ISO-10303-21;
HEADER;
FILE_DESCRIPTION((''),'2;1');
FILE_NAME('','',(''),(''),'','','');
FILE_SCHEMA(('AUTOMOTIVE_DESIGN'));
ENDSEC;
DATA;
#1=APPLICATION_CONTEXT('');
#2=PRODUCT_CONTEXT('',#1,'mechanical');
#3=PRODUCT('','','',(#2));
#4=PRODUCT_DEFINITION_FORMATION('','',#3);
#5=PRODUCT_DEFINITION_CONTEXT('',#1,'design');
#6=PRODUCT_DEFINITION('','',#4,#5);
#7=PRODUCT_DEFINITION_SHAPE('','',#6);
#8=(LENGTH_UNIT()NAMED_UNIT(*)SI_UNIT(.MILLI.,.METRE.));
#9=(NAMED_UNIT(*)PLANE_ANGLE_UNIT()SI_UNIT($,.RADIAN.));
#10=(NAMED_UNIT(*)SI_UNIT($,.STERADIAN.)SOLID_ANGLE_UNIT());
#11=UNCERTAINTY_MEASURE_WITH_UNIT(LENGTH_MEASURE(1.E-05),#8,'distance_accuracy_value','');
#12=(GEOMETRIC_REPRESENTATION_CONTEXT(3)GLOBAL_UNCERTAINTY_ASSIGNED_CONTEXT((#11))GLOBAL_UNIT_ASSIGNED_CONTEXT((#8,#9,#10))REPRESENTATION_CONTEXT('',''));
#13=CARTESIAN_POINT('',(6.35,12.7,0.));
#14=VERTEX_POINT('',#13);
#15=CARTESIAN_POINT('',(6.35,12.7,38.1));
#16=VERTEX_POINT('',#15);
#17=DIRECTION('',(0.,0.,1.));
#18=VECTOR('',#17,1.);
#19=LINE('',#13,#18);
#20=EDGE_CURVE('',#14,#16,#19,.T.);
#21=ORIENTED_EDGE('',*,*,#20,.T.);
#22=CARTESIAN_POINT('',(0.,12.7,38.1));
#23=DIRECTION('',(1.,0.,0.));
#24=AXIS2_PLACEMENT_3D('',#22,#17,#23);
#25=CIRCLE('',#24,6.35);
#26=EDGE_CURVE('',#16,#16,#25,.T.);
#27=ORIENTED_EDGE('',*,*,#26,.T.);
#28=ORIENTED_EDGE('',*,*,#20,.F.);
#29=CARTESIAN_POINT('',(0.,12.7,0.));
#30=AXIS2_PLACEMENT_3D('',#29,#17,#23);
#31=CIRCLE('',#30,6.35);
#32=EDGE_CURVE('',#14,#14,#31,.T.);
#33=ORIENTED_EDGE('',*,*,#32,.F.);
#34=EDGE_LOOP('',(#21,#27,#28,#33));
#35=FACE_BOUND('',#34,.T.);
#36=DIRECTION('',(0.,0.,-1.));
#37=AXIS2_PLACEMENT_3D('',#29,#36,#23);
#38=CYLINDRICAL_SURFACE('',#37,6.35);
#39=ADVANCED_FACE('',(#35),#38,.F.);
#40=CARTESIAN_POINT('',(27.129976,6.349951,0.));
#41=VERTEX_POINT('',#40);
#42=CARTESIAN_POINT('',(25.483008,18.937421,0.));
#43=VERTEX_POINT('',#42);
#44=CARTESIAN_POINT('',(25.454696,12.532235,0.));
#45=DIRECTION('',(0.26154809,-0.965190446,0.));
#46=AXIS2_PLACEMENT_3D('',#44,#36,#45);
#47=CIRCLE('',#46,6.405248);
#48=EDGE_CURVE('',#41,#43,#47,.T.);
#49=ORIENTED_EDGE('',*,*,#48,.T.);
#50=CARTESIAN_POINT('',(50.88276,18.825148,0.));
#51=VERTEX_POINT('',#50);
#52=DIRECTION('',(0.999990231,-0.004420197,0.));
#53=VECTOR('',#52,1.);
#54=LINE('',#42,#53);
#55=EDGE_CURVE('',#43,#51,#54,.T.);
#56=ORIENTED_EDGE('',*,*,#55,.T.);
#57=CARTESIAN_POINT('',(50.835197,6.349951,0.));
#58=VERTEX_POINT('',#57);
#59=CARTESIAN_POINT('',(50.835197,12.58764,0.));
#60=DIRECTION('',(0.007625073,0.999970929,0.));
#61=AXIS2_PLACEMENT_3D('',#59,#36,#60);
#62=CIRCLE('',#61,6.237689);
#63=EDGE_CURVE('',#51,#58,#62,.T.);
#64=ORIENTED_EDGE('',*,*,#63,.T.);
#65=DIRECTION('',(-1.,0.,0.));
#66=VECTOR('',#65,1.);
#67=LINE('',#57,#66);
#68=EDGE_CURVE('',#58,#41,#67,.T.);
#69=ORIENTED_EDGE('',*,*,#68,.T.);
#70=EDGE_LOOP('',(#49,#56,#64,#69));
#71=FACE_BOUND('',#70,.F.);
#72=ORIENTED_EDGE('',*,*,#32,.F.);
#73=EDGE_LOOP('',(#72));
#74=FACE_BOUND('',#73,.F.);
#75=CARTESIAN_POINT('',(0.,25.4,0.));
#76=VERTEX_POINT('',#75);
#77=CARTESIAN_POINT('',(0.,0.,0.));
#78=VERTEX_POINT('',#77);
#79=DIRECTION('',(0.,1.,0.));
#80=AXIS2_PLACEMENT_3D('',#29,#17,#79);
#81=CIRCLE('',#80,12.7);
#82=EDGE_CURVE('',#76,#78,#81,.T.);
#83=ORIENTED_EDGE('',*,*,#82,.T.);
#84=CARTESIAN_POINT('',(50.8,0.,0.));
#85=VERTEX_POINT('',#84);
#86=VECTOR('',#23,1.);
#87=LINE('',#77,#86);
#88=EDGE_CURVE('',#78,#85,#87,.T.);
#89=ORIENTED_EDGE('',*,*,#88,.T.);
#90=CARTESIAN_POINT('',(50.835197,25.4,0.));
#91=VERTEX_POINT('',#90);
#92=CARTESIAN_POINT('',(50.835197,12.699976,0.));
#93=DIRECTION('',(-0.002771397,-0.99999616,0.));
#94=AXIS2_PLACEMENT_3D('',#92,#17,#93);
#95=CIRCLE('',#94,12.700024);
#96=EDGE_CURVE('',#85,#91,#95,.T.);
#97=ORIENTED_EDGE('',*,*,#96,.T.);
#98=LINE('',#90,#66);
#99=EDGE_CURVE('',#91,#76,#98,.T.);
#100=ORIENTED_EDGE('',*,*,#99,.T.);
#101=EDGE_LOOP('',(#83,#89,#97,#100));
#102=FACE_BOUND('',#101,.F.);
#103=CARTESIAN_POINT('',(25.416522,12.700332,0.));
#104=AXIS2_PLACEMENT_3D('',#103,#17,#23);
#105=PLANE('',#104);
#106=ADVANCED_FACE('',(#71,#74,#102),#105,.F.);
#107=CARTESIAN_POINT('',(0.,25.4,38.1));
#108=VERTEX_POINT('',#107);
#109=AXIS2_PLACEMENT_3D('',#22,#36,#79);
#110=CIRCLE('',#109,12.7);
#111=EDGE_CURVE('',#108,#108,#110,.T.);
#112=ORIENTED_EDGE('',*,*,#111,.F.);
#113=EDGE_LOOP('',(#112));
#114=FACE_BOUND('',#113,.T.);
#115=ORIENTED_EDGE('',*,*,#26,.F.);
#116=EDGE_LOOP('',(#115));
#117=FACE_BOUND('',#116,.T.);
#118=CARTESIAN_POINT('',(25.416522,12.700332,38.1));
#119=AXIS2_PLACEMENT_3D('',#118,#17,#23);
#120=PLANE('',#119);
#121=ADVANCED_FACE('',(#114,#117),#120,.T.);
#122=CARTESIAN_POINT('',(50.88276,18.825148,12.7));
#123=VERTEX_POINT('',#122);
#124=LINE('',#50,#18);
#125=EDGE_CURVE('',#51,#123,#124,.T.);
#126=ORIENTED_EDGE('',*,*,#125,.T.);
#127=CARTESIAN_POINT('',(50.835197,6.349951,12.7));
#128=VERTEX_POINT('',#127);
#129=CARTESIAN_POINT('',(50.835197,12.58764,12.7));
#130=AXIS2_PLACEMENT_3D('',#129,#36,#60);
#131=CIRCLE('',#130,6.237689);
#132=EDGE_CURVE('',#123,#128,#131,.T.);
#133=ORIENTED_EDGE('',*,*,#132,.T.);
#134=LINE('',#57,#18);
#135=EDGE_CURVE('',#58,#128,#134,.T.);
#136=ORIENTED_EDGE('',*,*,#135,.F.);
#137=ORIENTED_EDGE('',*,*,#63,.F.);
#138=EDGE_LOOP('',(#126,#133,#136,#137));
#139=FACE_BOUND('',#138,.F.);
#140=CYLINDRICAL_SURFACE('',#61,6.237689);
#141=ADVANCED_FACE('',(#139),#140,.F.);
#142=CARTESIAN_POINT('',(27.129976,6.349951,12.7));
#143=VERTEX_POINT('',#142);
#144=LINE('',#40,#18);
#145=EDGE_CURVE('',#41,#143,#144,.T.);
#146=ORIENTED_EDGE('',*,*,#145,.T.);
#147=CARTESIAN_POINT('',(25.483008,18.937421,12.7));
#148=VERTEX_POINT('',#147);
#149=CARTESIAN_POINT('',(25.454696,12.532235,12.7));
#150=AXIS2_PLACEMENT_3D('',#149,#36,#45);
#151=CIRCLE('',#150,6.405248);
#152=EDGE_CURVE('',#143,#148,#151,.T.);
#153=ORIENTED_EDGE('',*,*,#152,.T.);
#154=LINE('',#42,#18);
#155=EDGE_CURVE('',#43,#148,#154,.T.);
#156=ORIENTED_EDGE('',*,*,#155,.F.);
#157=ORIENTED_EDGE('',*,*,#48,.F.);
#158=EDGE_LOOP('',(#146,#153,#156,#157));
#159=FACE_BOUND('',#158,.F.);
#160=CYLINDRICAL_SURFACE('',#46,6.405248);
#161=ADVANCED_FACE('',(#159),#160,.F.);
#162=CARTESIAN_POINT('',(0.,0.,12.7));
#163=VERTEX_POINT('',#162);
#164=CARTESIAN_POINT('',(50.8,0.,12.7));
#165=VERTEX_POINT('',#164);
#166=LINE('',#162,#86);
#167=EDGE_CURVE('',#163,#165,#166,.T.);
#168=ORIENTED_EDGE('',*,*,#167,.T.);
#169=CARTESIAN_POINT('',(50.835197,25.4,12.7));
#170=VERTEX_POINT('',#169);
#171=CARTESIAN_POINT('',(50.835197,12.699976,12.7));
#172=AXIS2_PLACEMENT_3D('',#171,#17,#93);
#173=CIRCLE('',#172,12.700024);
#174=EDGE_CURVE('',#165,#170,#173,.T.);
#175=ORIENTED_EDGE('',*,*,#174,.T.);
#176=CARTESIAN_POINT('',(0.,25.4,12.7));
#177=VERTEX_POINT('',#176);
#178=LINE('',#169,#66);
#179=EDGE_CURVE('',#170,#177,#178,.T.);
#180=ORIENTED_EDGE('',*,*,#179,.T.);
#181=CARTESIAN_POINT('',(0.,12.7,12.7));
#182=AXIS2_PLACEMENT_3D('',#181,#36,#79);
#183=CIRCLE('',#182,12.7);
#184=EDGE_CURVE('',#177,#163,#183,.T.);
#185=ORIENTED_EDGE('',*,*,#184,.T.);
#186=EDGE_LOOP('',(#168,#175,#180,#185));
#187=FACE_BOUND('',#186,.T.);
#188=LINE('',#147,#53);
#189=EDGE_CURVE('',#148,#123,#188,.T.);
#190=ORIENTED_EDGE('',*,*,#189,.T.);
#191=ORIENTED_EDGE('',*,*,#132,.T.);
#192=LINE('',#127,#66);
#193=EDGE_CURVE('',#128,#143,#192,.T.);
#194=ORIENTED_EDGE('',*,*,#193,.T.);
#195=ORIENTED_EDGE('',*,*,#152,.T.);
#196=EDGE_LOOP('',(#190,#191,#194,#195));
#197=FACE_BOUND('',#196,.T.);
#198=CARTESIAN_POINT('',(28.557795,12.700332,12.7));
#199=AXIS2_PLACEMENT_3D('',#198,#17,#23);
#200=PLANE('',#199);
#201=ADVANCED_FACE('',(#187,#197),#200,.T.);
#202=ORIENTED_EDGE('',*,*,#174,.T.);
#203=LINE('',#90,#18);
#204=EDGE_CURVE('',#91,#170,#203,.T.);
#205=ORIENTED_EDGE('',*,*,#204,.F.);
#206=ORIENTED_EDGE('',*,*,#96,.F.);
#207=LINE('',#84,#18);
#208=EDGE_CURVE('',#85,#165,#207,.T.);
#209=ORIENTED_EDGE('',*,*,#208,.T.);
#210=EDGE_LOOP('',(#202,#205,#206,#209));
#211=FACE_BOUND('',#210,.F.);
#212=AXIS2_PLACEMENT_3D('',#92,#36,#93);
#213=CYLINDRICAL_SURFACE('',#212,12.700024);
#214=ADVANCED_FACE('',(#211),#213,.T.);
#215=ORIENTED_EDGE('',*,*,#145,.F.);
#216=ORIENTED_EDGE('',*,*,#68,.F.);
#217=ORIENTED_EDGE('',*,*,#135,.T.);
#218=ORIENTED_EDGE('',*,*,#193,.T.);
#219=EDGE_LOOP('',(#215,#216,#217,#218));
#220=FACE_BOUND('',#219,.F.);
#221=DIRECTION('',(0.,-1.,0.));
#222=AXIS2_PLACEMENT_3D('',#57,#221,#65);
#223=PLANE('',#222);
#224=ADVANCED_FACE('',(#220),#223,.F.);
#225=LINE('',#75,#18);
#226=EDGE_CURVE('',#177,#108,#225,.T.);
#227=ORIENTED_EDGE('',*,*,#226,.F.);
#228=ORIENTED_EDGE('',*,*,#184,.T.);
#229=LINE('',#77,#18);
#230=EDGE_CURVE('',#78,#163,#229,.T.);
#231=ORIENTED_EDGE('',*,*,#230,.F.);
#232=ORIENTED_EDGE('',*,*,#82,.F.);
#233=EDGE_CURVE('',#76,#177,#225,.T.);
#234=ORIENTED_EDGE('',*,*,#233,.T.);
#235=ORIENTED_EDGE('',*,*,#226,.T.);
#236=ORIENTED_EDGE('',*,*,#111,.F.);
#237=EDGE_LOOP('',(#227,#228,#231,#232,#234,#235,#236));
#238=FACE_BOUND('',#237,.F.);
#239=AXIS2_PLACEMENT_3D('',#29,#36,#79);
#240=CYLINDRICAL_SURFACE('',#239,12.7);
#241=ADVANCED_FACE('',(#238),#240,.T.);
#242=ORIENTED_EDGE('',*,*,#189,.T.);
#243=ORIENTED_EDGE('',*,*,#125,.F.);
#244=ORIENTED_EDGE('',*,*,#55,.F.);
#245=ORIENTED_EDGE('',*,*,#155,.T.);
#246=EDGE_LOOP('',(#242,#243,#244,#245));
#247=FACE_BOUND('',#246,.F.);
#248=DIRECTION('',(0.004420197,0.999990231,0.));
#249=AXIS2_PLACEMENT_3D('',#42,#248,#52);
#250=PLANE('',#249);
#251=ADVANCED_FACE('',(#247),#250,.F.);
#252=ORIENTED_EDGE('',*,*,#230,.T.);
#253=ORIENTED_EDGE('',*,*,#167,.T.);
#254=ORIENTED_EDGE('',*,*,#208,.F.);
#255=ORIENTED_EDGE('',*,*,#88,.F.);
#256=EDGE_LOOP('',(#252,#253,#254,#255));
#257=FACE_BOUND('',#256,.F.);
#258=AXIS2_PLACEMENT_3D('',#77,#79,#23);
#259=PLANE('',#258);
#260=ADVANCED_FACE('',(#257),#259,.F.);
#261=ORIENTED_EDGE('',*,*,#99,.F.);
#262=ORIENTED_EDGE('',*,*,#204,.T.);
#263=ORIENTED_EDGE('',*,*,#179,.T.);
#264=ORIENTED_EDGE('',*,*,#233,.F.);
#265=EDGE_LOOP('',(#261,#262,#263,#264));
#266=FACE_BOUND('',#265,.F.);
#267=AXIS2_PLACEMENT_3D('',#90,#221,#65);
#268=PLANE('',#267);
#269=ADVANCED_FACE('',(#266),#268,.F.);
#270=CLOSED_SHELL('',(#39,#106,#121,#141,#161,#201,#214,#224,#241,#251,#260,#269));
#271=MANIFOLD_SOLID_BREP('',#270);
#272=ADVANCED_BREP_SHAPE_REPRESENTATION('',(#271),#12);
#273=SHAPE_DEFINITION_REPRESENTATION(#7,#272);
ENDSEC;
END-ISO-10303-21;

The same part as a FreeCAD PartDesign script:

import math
import FreeCAD as App
import Part
import Sketcher
from FreeCAD import Vector
Q = App.Units.Quantity

doc = App.newDocument("Part")
body = doc.addObject("PartDesign::Body", "Body")

# Sketch on XY plane
sketch1 = body.newObject("Sketcher::SketchObject", "Sketch")
sketch1.AttachmentSupport = (doc.getObject("XY_Plane"), [""])
sketch1.MapMode = "FlatFace"
sketch1.addGeometry([
    Part.ArcOfCircle(Part.Circle(Vector(0, 13, 0), Vector(0, 0, 1), 13), math.radians(90), math.radians(270)),  # 0
    Part.LineSegment(Vector(0, 0, 0), Vector(51, 0, 0)),  # 1
    Part.ArcOfCircle(Part.Circle(Vector(51, 13, 0), Vector(0, 0, 1), 13), math.radians(-90), math.radians(90)),  # 2
    Part.LineSegment(Vector(51, 25, 0), Vector(0, 25, 0)),  # 3
    Part.ArcOfCircle(Part.Circle(Vector(25, 13, 0), Vector(0, 0, 1), 6), math.radians(90), math.radians(285)),  # 4
    Part.LineSegment(Vector(25, 19, 0), Vector(51, 19, 0)),  # 5
    Part.ArcOfCircle(Part.Circle(Vector(51, 13, 0), Vector(0, 0, 1), 6), math.radians(-90), math.radians(90)),  # 6
    Part.LineSegment(Vector(51, 6, 0), Vector(27, 6, 0)),  # 7
    Part.Circle(Vector(0, 13, 0), Vector(0, 0, 1), 6),  # 8
], False)
sketch1.addConstraint([
    Sketcher.Constraint("Tangent", 0, 2, 1, 1),
    Sketcher.Constraint("Coincident", 1, 2, 2, 1),
    Sketcher.Constraint("Tangent", 2, 2, 3, 1),
    Sketcher.Constraint("Tangent", 3, 2, 0, 1),
    Sketcher.Constraint("Tangent", 4, 1, 5, 1),
    Sketcher.Constraint("Coincident", 5, 2, 6, 2),
    Sketcher.Constraint("Tangent", 6, 1, 7, 1),
    Sketcher.Constraint("Coincident", 7, 2, 4, 2),
    Sketcher.Constraint("Horizontal", 1),
    Sketcher.Constraint("Horizontal", 3),
    Sketcher.Constraint("Horizontal", 7),
    Sketcher.Constraint("Coincident", 0, 2, -1, 1),
    Sketcher.Constraint("Coincident", 8, 3, 0, 3),
    Sketcher.Constraint("Vertical", 2, 3, 6, 3),
    Sketcher.Constraint("Diameter", 8, Q("0.5 in")),
    Sketcher.Constraint("Radius", 0, Q("0.5 in")),
    Sketcher.Constraint("DistanceX", 1, 1, 1, 2, Q("2 in")),
    Sketcher.Constraint("Distance", 5, Q("1 in")),
    Sketcher.Constraint("Radius", 4, Q("6.405248 mm")),
    Sketcher.Constraint("Radius", 6, Q("6.237689 mm")),
    Sketcher.Constraint("DistanceX", 7, 2, 7, 1, Q("23.705221 mm")),
    Sketcher.Constraint("DistanceX", 4, 3, 2, 3, Q("25.380501 mm")),
    Sketcher.Constraint("DistanceX", 3, 2, 3, 1, Q("50.835197 mm")),
    Sketcher.Constraint("DistanceY", -1, 1, 6, 3, Q("12.58764 mm")),
])
pad1 = body.newObject("PartDesign::Pad", "Pad")
pad1.Profile = sketch1
pad1.Length = Q("1.5 in")

# Sketch on XY plane
sketch2 = body.newObject("Sketcher::SketchObject", "Sketch001")
sketch2.AttachmentSupport = (doc.getObject("XY_Plane"), [""])
sketch2.MapMode = "FlatFace"
sketch2.AttachmentOffset = App.Placement(Vector(0, 0, 1.5 * 25.4), App.Rotation())
sketch2.addGeometry([
    Part.ArcOfCircle(Part.Circle(Vector(0, 13, 0), Vector(0, 0, 1), 13), math.radians(-90), math.radians(90)),  # 0
    Part.LineSegment(Vector(0, 0, 0), Vector(51, 0, 0)),  # 1
    Part.ArcOfCircle(Part.Circle(Vector(51, 13, 0), Vector(0, 0, 1), 13), math.radians(-90), math.radians(90)),  # 2
    Part.LineSegment(Vector(51, 25, 0), Vector(0, 25, 0)),  # 3
    Part.ArcOfCircle(Part.Circle(Vector(51, 13, 0), Vector(0, 0, 1), 6), math.radians(-90), math.radians(90)),  # 4
    Part.LineSegment(Vector(51, 6, 0), Vector(27, 6, 0)),  # 5
    Part.ArcOfCircle(Part.Circle(Vector(25, 13, 0), Vector(0, 0, 1), 6), math.radians(90), math.radians(285)),  # 6
    Part.LineSegment(Vector(25, 19, 0), Vector(51, 19, 0)),  # 7
], False)
sketch2.addConstraint([
    Sketcher.Constraint("Tangent", 0, 1, 1, 1),
    Sketcher.Constraint("Coincident", 1, 2, 2, 1),
    Sketcher.Constraint("Tangent", 2, 2, 3, 1),
    Sketcher.Constraint("Tangent", 3, 2, 0, 2),
    Sketcher.Constraint("Tangent", 4, 1, 5, 1),
    Sketcher.Constraint("Coincident", 5, 2, 6, 2),
    Sketcher.Constraint("Tangent", 6, 1, 7, 1),
    Sketcher.Constraint("Coincident", 7, 2, 4, 2),
    Sketcher.Constraint("Horizontal", 1),
    Sketcher.Constraint("Horizontal", 3),
    Sketcher.Constraint("Horizontal", 5),
    Sketcher.Constraint("Coincident", 0, 1, -1, 1),
    Sketcher.Constraint("Vertical", 2, 3, 4, 3),
    Sketcher.Constraint("Radius", 0, Q("0.5 in")),
    Sketcher.Constraint("DistanceX", 1, 1, 1, 2, Q("2 in")),
    Sketcher.Constraint("Distance", 7, Q("1 in")),
    Sketcher.Constraint("Radius", 4, Q("6.237689 mm")),
    Sketcher.Constraint("Radius", 6, Q("6.405248 mm")),
    Sketcher.Constraint("DistanceX", 5, 2, 5, 1, Q("23.705221 mm")),
    Sketcher.Constraint("DistanceX", 6, 3, 4, 3, Q("25.380502 mm")),
    Sketcher.Constraint("DistanceX", 3, 2, 3, 1, Q("50.835197 mm")),
    Sketcher.Constraint("DistanceY", -1, 1, 4, 3, Q("12.58764 mm")),
])
pocket1 = body.newObject("PartDesign::Pocket", "Pocket")
pocket1.Profile = sketch2
pocket1.Length = Q("1 in")

doc.recompute()
